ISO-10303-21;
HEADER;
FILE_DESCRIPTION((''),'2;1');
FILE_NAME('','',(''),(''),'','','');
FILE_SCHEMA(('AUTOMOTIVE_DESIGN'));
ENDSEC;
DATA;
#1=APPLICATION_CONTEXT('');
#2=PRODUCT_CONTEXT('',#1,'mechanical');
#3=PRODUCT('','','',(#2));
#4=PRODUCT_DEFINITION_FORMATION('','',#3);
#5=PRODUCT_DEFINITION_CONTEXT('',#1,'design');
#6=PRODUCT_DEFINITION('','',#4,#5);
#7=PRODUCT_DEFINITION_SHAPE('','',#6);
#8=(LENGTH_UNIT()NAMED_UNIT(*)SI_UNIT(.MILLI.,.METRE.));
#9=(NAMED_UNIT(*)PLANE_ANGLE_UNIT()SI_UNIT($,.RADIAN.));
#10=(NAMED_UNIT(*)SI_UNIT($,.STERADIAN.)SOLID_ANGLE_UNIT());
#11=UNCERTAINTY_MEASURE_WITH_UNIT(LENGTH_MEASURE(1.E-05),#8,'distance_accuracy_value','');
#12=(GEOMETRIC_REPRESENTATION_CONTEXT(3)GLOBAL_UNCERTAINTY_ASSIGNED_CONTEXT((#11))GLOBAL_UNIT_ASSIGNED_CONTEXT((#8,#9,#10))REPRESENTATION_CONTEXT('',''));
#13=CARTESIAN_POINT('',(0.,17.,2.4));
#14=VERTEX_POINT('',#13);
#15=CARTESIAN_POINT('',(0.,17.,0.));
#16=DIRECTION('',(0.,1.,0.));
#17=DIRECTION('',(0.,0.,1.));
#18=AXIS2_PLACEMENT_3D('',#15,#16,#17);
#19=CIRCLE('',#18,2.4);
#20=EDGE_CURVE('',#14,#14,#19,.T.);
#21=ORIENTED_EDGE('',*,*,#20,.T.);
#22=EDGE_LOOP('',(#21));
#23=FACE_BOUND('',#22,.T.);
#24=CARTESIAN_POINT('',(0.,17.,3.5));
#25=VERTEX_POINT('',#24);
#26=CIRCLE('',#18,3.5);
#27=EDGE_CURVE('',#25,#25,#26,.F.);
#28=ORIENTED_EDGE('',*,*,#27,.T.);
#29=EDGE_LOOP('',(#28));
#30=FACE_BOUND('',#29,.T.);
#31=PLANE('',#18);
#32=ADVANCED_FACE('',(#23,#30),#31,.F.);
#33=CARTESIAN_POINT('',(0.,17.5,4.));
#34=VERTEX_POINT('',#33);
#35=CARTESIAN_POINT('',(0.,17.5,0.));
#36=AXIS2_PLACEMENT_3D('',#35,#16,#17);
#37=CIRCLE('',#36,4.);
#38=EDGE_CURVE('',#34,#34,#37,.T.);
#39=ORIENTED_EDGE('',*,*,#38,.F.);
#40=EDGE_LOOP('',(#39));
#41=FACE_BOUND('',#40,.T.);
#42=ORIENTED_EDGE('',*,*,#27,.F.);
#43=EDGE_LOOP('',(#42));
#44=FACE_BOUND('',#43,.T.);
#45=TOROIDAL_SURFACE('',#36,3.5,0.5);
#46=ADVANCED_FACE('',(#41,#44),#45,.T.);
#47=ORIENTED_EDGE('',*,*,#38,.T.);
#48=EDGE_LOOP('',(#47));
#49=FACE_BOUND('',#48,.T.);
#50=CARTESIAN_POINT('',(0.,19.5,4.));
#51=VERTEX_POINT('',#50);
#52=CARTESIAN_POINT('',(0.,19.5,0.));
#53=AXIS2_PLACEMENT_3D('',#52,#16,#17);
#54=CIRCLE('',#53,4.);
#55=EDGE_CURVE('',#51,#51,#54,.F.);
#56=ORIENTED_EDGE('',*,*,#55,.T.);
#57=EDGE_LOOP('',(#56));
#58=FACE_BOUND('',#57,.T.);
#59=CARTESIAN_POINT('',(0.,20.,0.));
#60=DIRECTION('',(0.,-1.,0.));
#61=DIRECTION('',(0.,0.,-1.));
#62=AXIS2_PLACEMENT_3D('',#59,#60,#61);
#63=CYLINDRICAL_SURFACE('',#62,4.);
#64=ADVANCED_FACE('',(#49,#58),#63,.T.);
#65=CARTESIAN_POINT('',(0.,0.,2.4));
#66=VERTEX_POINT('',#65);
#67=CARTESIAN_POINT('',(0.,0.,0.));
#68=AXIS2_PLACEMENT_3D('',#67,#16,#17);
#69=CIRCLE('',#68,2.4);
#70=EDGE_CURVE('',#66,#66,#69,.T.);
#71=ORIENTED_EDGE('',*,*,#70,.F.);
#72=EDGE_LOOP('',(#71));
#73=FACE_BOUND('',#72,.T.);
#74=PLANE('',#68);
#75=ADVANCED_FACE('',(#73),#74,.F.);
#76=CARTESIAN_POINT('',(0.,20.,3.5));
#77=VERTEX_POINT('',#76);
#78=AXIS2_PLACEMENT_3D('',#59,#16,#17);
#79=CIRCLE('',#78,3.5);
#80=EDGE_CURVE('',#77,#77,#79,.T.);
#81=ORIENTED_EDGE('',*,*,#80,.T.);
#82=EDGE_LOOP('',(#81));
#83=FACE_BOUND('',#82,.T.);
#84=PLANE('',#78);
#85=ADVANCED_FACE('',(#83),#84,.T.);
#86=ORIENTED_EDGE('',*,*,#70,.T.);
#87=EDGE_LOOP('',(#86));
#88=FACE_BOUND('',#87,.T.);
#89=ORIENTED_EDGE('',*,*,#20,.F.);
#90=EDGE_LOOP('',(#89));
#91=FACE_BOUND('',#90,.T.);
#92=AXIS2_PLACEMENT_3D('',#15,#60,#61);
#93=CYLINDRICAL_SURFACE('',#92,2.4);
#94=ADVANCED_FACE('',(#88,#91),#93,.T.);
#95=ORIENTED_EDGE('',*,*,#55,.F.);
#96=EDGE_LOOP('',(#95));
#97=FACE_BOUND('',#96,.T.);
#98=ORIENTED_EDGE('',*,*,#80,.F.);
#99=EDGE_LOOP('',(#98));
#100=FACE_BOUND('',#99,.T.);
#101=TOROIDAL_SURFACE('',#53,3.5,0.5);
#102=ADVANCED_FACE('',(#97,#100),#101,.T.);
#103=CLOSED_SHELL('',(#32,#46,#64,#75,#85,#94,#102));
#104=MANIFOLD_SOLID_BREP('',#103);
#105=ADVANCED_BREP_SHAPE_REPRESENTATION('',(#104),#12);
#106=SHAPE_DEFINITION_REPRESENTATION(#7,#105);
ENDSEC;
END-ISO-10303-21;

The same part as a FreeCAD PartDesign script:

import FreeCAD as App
import Part
import Sketcher


def edges_at(feature, points):
    """Names of the edges that pass closest to the given points."""
    edges = feature.Shape.Edges
    near = lambda p: min(range(len(edges)), key=lambda i: edges[i].distToShape(Part.Vertex(*p))[0])
    return sorted({f"Edge{near(p) + 1}" for p in points})

doc = App.newDocument("Part")
body = doc.addObject("PartDesign::Body", "Body")

sketch1 = body.newObject("Sketcher::SketchObject", "Sketch")
sketch1.AttachmentSupport = (doc.getObject("XZ_Plane"), [""])
sketch1.MapMode = "FlatFace"
sketch1.addGeometry(Part.Circle(App.Vector(0, 0, 0), App.Vector(0, 0, 1), 2.4), False)
sketch1.addConstraint([
    Sketcher.Constraint("Coincident", 0, 3, -1, 1),
    Sketcher.Constraint("Diameter", 0, 4.8),
])
pad1 = body.newObject("PartDesign::Pad", "Pad")
pad1.Profile = sketch1
pad1.Length = 17
pad1.Reversed = True

sketch2 = body.newObject("Sketcher::SketchObject", "Sketch001")
sketch2.AttachmentSupport = (doc.getObject("XZ_Plane"), [""])
sketch2.MapMode = "FlatFace"
sketch2.AttachmentOffset = App.Placement(App.Vector(0, 0, -17), App.Rotation())
sketch2.addGeometry(Part.Circle(App.Vector(0, 0, 0), App.Vector(0, 0, 1), 4), False)
sketch2.addConstraint([
    Sketcher.Constraint("Coincident", 0, 3, -1, 1),
    Sketcher.Constraint("Diameter", 0, 8.0),
])
pad2 = body.newObject("PartDesign::Pad", "Pad001")
pad2.Profile = sketch2
pad2.Length = 3
pad2.Reversed = True
doc.recompute()

fillet = body.newObject("PartDesign::Fillet", "Fillet")
fillet.Base = (pad2, edges_at(pad2, [(0, 17, -4), (0, 20, -4)]))
fillet.Radius = 0.5

doc.recompute()
